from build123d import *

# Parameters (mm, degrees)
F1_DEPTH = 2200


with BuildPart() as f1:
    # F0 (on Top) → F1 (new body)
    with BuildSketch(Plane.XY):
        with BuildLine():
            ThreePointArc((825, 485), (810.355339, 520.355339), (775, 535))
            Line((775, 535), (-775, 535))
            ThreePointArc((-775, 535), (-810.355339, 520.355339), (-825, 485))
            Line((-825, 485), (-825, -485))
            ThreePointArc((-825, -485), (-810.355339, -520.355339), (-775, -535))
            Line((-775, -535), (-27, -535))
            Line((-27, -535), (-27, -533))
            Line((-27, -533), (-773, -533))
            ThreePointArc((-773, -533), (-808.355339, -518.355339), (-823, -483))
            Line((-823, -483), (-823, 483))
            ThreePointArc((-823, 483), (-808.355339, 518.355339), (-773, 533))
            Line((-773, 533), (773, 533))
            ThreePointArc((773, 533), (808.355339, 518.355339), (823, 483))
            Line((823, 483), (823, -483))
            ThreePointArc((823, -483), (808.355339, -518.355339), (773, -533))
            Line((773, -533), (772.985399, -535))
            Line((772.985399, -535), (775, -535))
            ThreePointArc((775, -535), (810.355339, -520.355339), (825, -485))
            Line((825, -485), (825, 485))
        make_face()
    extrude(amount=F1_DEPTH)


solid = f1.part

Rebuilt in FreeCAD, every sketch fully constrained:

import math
import FreeCAD as App
import Part
import Sketcher

V = App.Vector
Q = App.Units.Quantity

doc = App.newDocument("Part")
body = doc.addObject("PartDesign::Body", "Body")

sketch1 = body.newObject("Sketcher::SketchObject", "Sketch")
sketch1.AttachmentSupport = (doc.getObject("XY_Plane"), [""])
sketch1.MapMode = "FlatFace"
sketch1.addGeometry(Part.ArcOfCircle(Part.Circle(V(775, 485, 0), V(0, 0, 1), 50), math.radians(0), math.radians(90)), False)
sketch1.addGeometry(Part.LineSegment(V(775, 535, 0), V(-775, 535, 0)), False)
sketch1.addGeometry(Part.ArcOfCircle(Part.Circle(V(-775, 485, 0), V(0, 0, 1), 50), math.radians(90), math.radians(180)), False)
sketch1.addGeometry(Part.LineSegment(V(-825, 485, 0), V(-825, -485, 0)), False)
sketch1.addGeometry(Part.ArcOfCircle(Part.Circle(V(-775, -485, 0), V(0, 0, 1), 50), math.radians(-180), math.radians(-90)), False)
sketch1.addGeometry(Part.LineSegment(V(-775, -535, 0), V(-27, -535, 0)), False)
sketch1.addGeometry(Part.LineSegment(V(-27, -535, 0), V(-27, -533, 0)), False)
sketch1.addGeometry(Part.LineSegment(V(-27, -533, 0), V(-773, -533, 0)), False)
sketch1.addGeometry(Part.ArcOfCircle(Part.Circle(V(-773, -483, 0), V(0, 0, 1), 50), math.radians(-180), math.radians(-90)), False)
sketch1.addGeometry(Part.LineSegment(V(-823, -483, 0), V(-823, 483, 0)), False)
sketch1.addGeometry(Part.ArcOfCircle(Part.Circle(V(-773, 483, 0), V(0, 0, 1), 50), math.radians(90), math.radians(180)), False)
sketch1.addGeometry(Part.LineSegment(V(-773, 533, 0), V(773, 533, 0)), False)
sketch1.addGeometry(Part.ArcOfCircle(Part.Circle(V(773, 483, 0), V(0, 0, 1), 50), math.radians(0), math.radians(90)), False)
sketch1.addGeometry(Part.LineSegment(V(823, 483, 0), V(823, -483, 0)), False)
sketch1.addGeometry(Part.ArcOfCircle(Part.Circle(V(773, -483, 0), V(0, 0, 1), 50), math.radians(-90), math.radians(0)), False)
sketch1.addGeometry(Part.LineSegment(V(773, -533, 0), V(773, -535, 0)), False)
sketch1.addGeometry(Part.LineSegment(V(773, -535, 0), V(775, -535, 0)), False)
sketch1.addGeometry(Part.ArcOfCircle(Part.Circle(V(775, -485, 0), V(0, 0, 1), 50), math.radians(-90), math.radians(0)), False)
sketch1.addGeometry(Part.LineSegment(V(825, -485, 0), V(825, 485, 0)), False)
sketch1.addConstraint(Sketcher.Constraint("Tangent", 0, 2, 1, 1))
sketch1.addConstraint(Sketcher.Constraint("Tangent", 1, 2, 2, 1))
sketch1.addConstraint(Sketcher.Constraint("Tangent", 2, 2, 3, 1))
sketch1.addConstraint(Sketcher.Constraint("Tangent", 3, 2, 4, 1))
sketch1.addConstraint(Sketcher.Constraint("Tangent", 4, 2, 5, 1))
sketch1.addConstraint(Sketcher.Constraint("Coincident", 5, 2, 6, 1))
sketch1.addConstraint(Sketcher.Constraint("Coincident", 6, 2, 7, 1))
sketch1.addConstraint(Sketcher.Constraint("Tangent", 7, 2, 8, 2))
sketch1.addConstraint(Sketcher.Constraint("Tangent", 8, 1, 9, 1))
sketch1.addConstraint(Sketcher.Constraint("Tangent", 9, 2, 10, 2))
sketch1.addConstraint(Sketcher.Constraint("Tangent", 10, 1, 11, 1))
sketch1.addConstraint(Sketcher.Constraint("Tangent", 11, 2, 12, 2))
sketch1.addConstraint(Sketcher.Constraint("Tangent", 12, 1, 13, 1))
sketch1.addConstraint(Sketcher.Constraint("Tangent", 13, 2, 14, 2))
sketch1.addConstraint(Sketcher.Constraint("Coincident", 14, 1, 15, 1))
sketch1.addConstraint(Sketcher.Constraint("Coincident", 15, 2, 16, 1))
sketch1.addConstraint(Sketcher.Constraint("Tangent", 16, 2, 17, 1))
sketch1.addConstraint(Sketcher.Constraint("Tangent", 17, 2, 18, 1))
sketch1.addConstraint(Sketcher.Constraint("Tangent", 18, 2, 0, 1))
sketch1.addConstraint(Sketcher.Constraint("Horizontal", 1))
sketch1.addConstraint(Sketcher.Constraint("Vertical", 3))
sketch1.addConstraint(Sketcher.Constraint("Horizontal", 5))
sketch1.addConstraint(Sketcher.Constraint("Vertical", 6))
sketch1.addConstraint(Sketcher.Constraint("Horizontal", 7))
sketch1.addConstraint(Sketcher.Constraint("Vertical", 9))
sketch1.addConstraint(Sketcher.Constraint("Horizontal", 11))
sketch1.addConstraint(Sketcher.Constraint("Vertical", 13))
sketch1.addConstraint(Sketcher.Constraint("Horizontal", 16))
sketch1.addConstraint(Sketcher.Constraint("Vertical", 18))
sketch1.addConstraint(Sketcher.Constraint("Equal", 0, 2))
sketch1.addConstraint(Sketcher.Constraint("Equal", 2, 4))
sketch1.addConstraint(Sketcher.Constraint("Equal", 4, 8))
sketch1.addConstraint(Sketcher.Constraint("Equal", 8, 10))
sketch1.addConstraint(Sketcher.Constraint("Equal", 10, 12))
sketch1.addConstraint(Sketcher.Constraint("Equal", 12, 14))
sketch1.addConstraint(Sketcher.Constraint("Equal", 14, 17))
sketch1.addConstraint(Sketcher.Constraint("Symmetric", 0, 3, 4, 3, -1, 1))
sketch1.addConstraint(Sketcher.Constraint("Symmetric", 8, 3, 12, 3, -1, 1))
sketch1.addConstraint(Sketcher.Constraint("Symmetric", 10, 1, 14, 1, -1, 1))
sketch1.addConstraint(Sketcher.Constraint("Horizontal", 4, 3, 17, 3))
sketch1.addConstraint(Sketcher.Constraint("Radius", 0, Q("50 mm")))
sketch1.addConstraint(Sketcher.Constraint("DistanceX", 1, 2, 1, 1, Q("1550 mm")))
sketch1.addConstraint(Sketcher.Constraint("DistanceX", 5, 1, 5, 2, Q("748 mm")))
sketch1.addConstraint(Sketcher.Constraint("DistanceX", 7, 2, 7, 1, Q("746 mm")))
sketch1.addConstraint(Sketcher.Constraint("DistanceY", 3, 2, 3, 1, Q("970 mm")))
sketch1.addConstraint(Sketcher.Constraint("DistanceY", 6, 1, 6, 2, Q("2 mm")))
sketch1.addConstraint(Sketcher.Constraint("DistanceX", 16, 1, 16, 2, Q("2.014601 mm")))
pad1 = body.newObject("PartDesign::Pad", "Pad")
pad1.Profile = sketch1
pad1.Length = 2200

doc.recompute()
